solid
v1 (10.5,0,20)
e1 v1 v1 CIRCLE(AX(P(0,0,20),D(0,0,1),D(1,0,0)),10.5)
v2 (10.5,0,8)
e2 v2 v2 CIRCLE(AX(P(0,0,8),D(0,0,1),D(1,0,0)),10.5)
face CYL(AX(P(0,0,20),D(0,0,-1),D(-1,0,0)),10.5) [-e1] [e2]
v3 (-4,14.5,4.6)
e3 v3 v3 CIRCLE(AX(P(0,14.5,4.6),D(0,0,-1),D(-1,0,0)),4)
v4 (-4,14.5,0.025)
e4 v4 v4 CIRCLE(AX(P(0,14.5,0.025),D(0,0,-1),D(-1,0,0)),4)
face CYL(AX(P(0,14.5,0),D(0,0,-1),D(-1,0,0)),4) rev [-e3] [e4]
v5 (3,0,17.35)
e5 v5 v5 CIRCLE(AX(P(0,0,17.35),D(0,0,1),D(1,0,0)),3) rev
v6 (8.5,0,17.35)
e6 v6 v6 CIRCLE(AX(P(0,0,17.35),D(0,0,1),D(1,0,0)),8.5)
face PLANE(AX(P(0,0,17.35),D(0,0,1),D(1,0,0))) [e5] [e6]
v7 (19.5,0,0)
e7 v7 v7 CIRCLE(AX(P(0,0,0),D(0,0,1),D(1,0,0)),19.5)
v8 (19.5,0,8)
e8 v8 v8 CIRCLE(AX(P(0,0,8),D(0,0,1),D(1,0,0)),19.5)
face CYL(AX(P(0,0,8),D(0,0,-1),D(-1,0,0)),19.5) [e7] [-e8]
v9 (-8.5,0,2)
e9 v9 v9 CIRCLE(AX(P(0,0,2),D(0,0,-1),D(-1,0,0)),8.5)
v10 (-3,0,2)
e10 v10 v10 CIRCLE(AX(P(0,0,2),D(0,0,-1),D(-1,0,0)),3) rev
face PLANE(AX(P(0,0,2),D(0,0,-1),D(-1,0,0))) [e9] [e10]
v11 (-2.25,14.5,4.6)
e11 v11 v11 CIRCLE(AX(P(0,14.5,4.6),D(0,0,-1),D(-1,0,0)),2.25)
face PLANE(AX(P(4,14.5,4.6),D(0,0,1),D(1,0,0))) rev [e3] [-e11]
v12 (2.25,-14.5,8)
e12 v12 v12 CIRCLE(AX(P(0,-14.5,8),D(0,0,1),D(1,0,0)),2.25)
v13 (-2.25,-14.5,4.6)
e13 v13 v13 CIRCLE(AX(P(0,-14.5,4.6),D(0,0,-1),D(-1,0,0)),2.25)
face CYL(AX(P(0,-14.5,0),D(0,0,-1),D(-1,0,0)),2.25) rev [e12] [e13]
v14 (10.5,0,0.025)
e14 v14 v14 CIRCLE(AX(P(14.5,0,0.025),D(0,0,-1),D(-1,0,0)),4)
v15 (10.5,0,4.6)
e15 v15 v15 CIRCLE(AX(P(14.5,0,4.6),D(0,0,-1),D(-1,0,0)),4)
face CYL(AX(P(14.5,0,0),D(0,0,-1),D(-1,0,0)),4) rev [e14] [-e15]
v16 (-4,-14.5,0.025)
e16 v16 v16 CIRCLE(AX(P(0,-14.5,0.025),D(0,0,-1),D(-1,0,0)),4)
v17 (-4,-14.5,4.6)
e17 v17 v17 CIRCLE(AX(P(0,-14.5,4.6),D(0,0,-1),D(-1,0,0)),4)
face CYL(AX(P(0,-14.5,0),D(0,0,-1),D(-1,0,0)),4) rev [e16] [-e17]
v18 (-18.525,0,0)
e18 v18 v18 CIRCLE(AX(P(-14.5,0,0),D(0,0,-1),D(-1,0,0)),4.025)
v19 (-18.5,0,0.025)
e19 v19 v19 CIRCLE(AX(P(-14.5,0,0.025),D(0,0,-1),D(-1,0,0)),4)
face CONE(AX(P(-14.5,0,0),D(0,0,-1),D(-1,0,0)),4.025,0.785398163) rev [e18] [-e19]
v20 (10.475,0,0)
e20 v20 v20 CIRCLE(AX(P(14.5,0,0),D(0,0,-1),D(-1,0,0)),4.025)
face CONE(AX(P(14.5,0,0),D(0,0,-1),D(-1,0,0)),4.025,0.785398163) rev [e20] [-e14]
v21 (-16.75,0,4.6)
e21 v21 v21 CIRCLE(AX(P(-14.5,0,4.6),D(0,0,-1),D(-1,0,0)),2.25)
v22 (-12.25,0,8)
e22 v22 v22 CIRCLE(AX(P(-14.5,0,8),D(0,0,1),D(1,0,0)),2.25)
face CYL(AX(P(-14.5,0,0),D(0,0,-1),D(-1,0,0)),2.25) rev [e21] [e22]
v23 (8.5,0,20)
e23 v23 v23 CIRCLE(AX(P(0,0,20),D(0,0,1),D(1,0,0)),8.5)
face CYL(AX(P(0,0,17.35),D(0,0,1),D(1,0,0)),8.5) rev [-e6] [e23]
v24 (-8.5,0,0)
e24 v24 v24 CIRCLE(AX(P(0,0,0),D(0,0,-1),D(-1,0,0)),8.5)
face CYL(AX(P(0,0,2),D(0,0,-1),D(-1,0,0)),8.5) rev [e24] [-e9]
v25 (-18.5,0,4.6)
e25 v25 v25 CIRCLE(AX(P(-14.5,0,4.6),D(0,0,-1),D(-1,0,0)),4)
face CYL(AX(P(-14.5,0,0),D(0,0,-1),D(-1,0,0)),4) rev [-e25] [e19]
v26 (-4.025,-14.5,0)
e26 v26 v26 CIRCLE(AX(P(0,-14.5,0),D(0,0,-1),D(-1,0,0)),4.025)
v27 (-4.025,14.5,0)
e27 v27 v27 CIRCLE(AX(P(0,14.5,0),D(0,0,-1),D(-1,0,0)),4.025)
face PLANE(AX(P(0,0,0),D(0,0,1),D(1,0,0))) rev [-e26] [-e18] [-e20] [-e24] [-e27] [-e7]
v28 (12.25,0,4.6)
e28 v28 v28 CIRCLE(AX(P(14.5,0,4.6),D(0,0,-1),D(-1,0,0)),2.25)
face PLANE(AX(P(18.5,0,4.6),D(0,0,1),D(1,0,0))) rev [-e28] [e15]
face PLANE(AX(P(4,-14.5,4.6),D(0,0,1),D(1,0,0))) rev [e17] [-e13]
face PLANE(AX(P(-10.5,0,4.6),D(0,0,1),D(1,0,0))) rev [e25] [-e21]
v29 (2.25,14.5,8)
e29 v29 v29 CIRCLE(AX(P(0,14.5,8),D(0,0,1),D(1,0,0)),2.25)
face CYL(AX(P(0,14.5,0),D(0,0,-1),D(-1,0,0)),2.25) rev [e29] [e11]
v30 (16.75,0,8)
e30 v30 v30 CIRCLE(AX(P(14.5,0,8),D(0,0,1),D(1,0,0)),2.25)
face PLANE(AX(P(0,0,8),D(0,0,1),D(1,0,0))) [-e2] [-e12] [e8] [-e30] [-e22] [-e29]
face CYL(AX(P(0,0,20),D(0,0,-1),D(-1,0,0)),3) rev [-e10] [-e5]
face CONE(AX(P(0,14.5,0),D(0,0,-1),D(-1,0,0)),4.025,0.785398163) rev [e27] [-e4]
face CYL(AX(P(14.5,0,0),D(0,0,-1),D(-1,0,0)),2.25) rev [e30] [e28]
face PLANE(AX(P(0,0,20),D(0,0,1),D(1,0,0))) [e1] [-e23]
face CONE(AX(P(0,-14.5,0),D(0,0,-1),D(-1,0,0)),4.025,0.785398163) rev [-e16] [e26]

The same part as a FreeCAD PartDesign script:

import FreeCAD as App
import Part
import Sketcher
Q = App.Units.Quantity


def add_polygon(sketch, points):
    """Adds a closed chain of lines whose ends are joined by coincident constraints."""
    first, n = sketch.GeometryCount, len(points)
    for a, b in zip(points, points[1:] + points[:1]):
        sketch.addGeometry(Part.LineSegment(App.Vector(*a, 0), App.Vector(*b, 0)), False)
    for i in range(n):
        sketch.addConstraint(Sketcher.Constraint("Coincident", first + i, 2, first + (i + 1) % n, 1))

doc = App.newDocument("Part")
body = doc.addObject("PartDesign::Body", "Body")

sketch1 = body.newObject("Sketcher::SketchObject", "Sketch")
sketch1.AttachmentSupport = (doc.getObject("XY_Plane"), [""])
sketch1.MapMode = "FlatFace"
sketch1.addGeometry(Part.Circle(App.Vector(0, 0, 0), App.Vector(0, 0, 1), 19.5), False)
sketch1.addConstraint([
    Sketcher.Constraint("Coincident", 0, 3, -1, 1),
    Sketcher.Constraint("Diameter", 0, 39.0),
])
pad1 = body.newObject("PartDesign::Pad", "Pad")
pad1.Profile = sketch1
pad1.Length = 8

sketch2 = body.newObject("Sketcher::SketchObject", "Sketch001")
sketch2.AttachmentSupport = (doc.getObject("XY_Plane"), [""])
sketch2.MapMode = "FlatFace"
sketch2.AttachmentOffset = App.Placement(App.Vector(0, 0, 8), App.Rotation())
sketch2.addGeometry(Part.Circle(App.Vector(0, 0, 0), App.Vector(0, 0, 1), 10.5), False)
sketch2.addConstraint([
    Sketcher.Constraint("Coincident", 0, 3, -1, 1),
    Sketcher.Constraint("Diameter", 0, 21.0),
])
pad2 = body.newObject("PartDesign::Pad", "Pad001")
pad2.Profile = sketch2
pad2.Length = 12

sketch3 = body.newObject("Sketcher::SketchObject", "Sketch002")
sketch3.AttachmentSupport = (doc.getObject("XY_Plane"), [""])
sketch3.MapMode = "FlatFace"
sketch3.addGeometry(Part.Circle(App.Vector(0, 0, 0), App.Vector(0, 0, 1), 3), False)
sketch3.addConstraint([
    Sketcher.Constraint("Coincident", 0, 3, -1, 1),
    Sketcher.Constraint("Diameter", 0, 6.0),
])
pocket1 = body.newObject("PartDesign::Pocket", "Pocket")
pocket1.Profile = sketch3
pocket1.Type = "ThroughAll"
pocket1.Reversed = True

sketch4 = body.newObject("Sketcher::SketchObject", "Sketch003")
sketch4.AttachmentSupport = (doc.getObject("XY_Plane"), [""])
sketch4.MapMode = "FlatFace"
sketch4.AttachmentOffset = App.Placement(App.Vector(0, 0, 20), App.Rotation())
sketch4.addGeometry(Part.Circle(App.Vector(0, 0, 0), App.Vector(0, 0, 1), 8.5), False)
sketch4.addConstraint([
    Sketcher.Constraint("Coincident", 0, 3, -1, 1),
    Sketcher.Constraint("Diameter", 0, 17.0),
])
pocket2 = body.newObject("PartDesign::Pocket", "Pocket001")
pocket2.Profile = sketch4
pocket2.Length = 2.65

sketch5 = body.newObject("Sketcher::SketchObject", "Sketch004")
sketch5.AttachmentSupport = (doc.getObject("XY_Plane"), [""])
sketch5.MapMode = "FlatFace"
sketch5.AttachmentOffset = App.Placement(App.Vector(0, 0, 2), App.Rotation())
sketch5.addGeometry(Part.Circle(App.Vector(0, 0, 0), App.Vector(0, 0, 1), 8.5), False)
sketch5.addConstraint([
    Sketcher.Constraint("Coincident", 0, 3, -1, 1),
    Sketcher.Constraint("Diameter", 0, 17.0),
])
pocket3 = body.newObject("PartDesign::Pocket", "Pocket002")
pocket3.Profile = sketch5
pocket3.Length = 2

sketch6 = body.newObject("Sketcher::SketchObject", "Sketch005")
sketch6.AttachmentSupport = (doc.getObject("YZ_Plane"), [""])
sketch6.MapMode = "FlatFace"
add_polygon(sketch6, [(14.5, 20), (14.5, 0), (18.525, 0), (18.5, 0.025), (18.5, 4.6), (16.75, 4.6), (16.75, 20)])
sketch6.addGeometry(Part.LineSegment(App.Vector(14.5, 0, 0), App.Vector(14.5, 20, 0)), True)
sketch6.addConstraint([
    Sketcher.Constraint("Vertical", 0),
    Sketcher.Constraint("Horizontal", 1),
    Sketcher.Constraint("Vertical", 3),
    Sketcher.Constraint("Horizontal", 4),
    Sketcher.Constraint("Vertical", 5),
    Sketcher.Constraint("Horizontal", 6),
    Sketcher.Constraint("Vertical", 7),
    Sketcher.Constraint("Coincident", 7, 1, 0, 2),
    Sketcher.Constraint("PointOnObject", 0, 2, -1),
    Sketcher.Constraint("Horizontal", 5, 2, 7, 2),
    Sketcher.Constraint("DistanceY", 0, 2, 0, 1, 20.0),
    Sketcher.Constraint("Angle", 2, Q("135 deg")),
    Sketcher.Constraint("DistanceY", 5, 1, 5, 2, 15.4),
    Sketcher.Constraint("DistanceX", 0, 2, 2, 2, 4.0),
    Sketcher.Constraint("DistanceX", 4, 2, 4, 1, 1.75),
    Sketcher.Constraint("DistanceX", -1, 1, 0, 2, 14.5),
    Sketcher.Constraint("DistanceX", 1, 1, 1, 2, 4.025),
])
groove = body.newObject("PartDesign::Groove", "Groove")
groove.Profile = sketch6
groove.ReferenceAxis = (sketch6, ["Axis0"])
groove.Angle = 360
doc.recompute()

polarpattern = body.newObject("PartDesign::PolarPattern", "PolarPattern")
polarpattern.Originals = [groove]
polarpattern.Axis = (doc.getObject("Z_Axis"), [""])
polarpattern.Angle = 360
polarpattern.Occurrences = 4
body.Tip = polarpattern

doc.recompute()
